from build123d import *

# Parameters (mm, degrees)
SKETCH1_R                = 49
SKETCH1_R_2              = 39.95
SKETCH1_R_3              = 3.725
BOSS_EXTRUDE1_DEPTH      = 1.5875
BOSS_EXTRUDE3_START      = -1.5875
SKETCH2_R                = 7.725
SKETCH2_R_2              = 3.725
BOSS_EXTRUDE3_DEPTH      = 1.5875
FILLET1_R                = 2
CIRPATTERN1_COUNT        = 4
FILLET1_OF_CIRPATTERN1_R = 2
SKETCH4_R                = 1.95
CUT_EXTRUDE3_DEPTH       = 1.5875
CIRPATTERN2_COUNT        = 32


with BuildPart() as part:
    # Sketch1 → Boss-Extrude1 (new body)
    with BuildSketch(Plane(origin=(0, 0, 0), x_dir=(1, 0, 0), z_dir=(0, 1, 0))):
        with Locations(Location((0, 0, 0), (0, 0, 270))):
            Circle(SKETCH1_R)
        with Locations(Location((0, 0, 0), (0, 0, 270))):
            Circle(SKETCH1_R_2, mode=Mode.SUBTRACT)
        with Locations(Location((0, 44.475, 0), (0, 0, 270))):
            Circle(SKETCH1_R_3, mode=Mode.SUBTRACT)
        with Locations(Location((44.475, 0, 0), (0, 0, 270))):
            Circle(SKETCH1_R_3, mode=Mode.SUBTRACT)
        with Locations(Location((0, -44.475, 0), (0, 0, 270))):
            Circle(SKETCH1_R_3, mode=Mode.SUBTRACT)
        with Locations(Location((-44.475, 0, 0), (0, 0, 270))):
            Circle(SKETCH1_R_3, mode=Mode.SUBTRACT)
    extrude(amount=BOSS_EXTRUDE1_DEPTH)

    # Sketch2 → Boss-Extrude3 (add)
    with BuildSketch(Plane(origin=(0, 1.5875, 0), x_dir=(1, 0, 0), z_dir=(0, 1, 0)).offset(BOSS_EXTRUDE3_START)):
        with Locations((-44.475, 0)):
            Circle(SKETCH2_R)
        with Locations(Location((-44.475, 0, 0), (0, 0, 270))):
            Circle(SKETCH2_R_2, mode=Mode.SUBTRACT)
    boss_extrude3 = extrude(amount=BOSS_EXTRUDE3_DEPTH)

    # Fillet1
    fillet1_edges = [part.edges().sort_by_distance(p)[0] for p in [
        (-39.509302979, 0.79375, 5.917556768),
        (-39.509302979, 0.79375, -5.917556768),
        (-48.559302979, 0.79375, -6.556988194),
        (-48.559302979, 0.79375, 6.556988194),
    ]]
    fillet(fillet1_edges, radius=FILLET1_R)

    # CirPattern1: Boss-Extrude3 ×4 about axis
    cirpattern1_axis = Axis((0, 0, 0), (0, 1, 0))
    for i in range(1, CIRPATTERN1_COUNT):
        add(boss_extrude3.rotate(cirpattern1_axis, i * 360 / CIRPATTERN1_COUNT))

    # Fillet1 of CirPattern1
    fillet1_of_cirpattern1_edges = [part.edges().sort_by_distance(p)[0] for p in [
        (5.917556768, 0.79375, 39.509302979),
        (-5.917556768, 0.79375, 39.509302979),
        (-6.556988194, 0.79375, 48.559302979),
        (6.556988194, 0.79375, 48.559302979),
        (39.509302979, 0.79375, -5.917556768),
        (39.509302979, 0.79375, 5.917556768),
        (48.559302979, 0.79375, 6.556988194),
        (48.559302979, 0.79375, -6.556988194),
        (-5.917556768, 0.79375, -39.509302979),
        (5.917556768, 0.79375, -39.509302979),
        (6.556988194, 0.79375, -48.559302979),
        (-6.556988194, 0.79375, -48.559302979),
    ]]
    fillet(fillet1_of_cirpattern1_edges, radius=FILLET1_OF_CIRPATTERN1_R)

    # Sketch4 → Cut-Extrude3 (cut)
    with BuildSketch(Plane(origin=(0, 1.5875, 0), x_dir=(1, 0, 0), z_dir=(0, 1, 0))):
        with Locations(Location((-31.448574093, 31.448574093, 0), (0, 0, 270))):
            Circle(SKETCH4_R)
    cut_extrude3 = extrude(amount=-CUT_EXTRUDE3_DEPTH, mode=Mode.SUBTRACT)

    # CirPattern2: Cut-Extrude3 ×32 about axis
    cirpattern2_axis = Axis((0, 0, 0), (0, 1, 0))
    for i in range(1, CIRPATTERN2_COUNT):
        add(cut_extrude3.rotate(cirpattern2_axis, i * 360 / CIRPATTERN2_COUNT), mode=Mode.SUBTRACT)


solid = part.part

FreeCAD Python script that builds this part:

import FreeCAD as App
import Part
import Sketcher

V = App.Vector
Q = App.Units.Quantity


def edges_at(feature, points):
    """Names of the edges that pass closest to the given points."""
    edges = feature.Shape.Edges
    near = lambda p: min(range(len(edges)), key=lambda i: edges[i].distToShape(Part.Vertex(*p))[0])
    return sorted({f"Edge{near(p) + 1}" for p in points})

doc = App.newDocument("Part")
body = doc.addObject("PartDesign::Body", "Body")

# Sketch on XZ plane
sketch1 = body.newObject("Sketcher::SketchObject", "Sketch")
sketch1.AttachmentSupport = (doc.getObject("XZ_Plane"), [""])
sketch1.MapMode = "FlatFace"
sketch1.addGeometry([
    Part.Circle(V(0, 0, 0), V(0, 0, 1), 49),  # 0
    Part.Circle(V(0, -44.475, 0), V(0, 0, 1), 3.725),  # 1
    Part.Circle(V(-44.475, 0, 0), V(0, 0, 1), 3.725),  # 2
    Part.Circle(V(44.475, 0, 0), V(0, 0, 1), 3.725),  # 3
    Part.Circle(V(0, 0, 0), V(0, 0, 1), 39.95),  # 4
    Part.Circle(V(0, 44.475, 0), V(0, 0, 1), 3.725),  # 5
], False)
sketch1.addConstraint([
    Sketcher.Constraint("Coincident", 0, 3, -1, 1),
    Sketcher.Constraint("Coincident", 4, 3, -1, 1),
    Sketcher.Constraint("Equal", 1, 2),
    Sketcher.Constraint("Equal", 2, 3),
    Sketcher.Constraint("Equal", 3, 5),
    Sketcher.Constraint("Symmetric", 2, 3, 3, 3, -1, 1),
    Sketcher.Constraint("Symmetric", 1, 3, 5, 3, -1, 1),
    Sketcher.Constraint("PointOnObject", 1, 3, -2),
    Sketcher.Constraint("PointOnObject", 2, 3, -1),
    Sketcher.Constraint("Diameter", 0, Q("98 mm")),
    Sketcher.Constraint("Diameter", 4, Q("79.9 mm")),
    Sketcher.Constraint("Diameter", 1, Q("7.45 mm")),
    Sketcher.Constraint("DistanceX", 2, 3, 3, 3, Q("88.95 mm")),
    Sketcher.Constraint("DistanceY", 1, 3, 5, 3, Q("88.95 mm")),
])
pad1 = body.newObject("PartDesign::Pad", "Pad")
pad1.Profile = sketch1
pad1.Length = 1.5875
pad1.Reversed = True

# Sketch on XZ plane
sketch2 = body.newObject("Sketcher::SketchObject", "Sketch001")
sketch2.AttachmentSupport = (doc.getObject("XZ_Plane"), [""])
sketch2.MapMode = "FlatFace"
sketch2.addGeometry([
    Part.Circle(V(-44.475, 0, 0), V(0, 0, 1), 7.725),
    Part.Circle(V(-44.475, 0, 0), V(0, 0, 1), 3.725),
], False)
sketch2.addConstraint([
    Sketcher.Constraint("Coincident", 1, 3, 0, 3),
    Sketcher.Constraint("PointOnObject", 0, 3, -1),
    Sketcher.Constraint("Diameter", 0, Q("15.45 mm")),
    Sketcher.Constraint("Diameter", 1, Q("7.45 mm")),
    Sketcher.Constraint("DistanceX", 0, 3, -1, 1, Q("44.475 mm")),
])
pad2 = body.newObject("PartDesign::Pad", "Pad001")
pad2.Profile = sketch2
pad2.Length = 1.5875
pad2.Reversed = True
doc.recompute()

fillet = body.newObject("PartDesign::Fillet", "Fillet")
fillet.Base = (pad2, edges_at(pad2, [
    (-39.509, 0.794, 5.918),
    (-39.509, 0.794, -5.918),
    (-48.559, 0.794, -6.557),
    (-48.559, 0.794, 6.557),
]))
fillet.Radius = 2
doc.recompute()

polarpattern = body.newObject("PartDesign::PolarPattern", "PolarPattern")
polarpattern.Originals = [pad2]
polarpattern.Axis = (doc.getObject("Y_Axis"), [""])
polarpattern.Angle = 360
polarpattern.Occurrences = 4
body.Tip = polarpattern
doc.recompute()

fillet2 = body.newObject("PartDesign::Fillet", "Fillet001")
fillet2.Base = (polarpattern, edges_at(polarpattern, [
    (5.918, 0.794, 39.509),
    (-5.918, 0.794, 39.509),
    (-6.557, 0.794, 48.559),
    (6.557, 0.794, 48.559),
    (39.509, 0.794, -5.918),
    (39.509, 0.794, 5.918),
    (48.559, 0.794, 6.557),
    (48.559, 0.794, -6.557),
    (-5.918, 0.794, -39.509),
    (5.918, 0.794, -39.509),
    (6.557, 0.794, -48.559),
    (-6.557, 0.794, -48.559),
]))
fillet2.Radius = 2

# Sketch on XZ plane
sketch3 = body.newObject("Sketcher::SketchObject", "Sketch002")
sketch3.AttachmentSupport = (doc.getObject("XZ_Plane"), [""])
sketch3.MapMode = "FlatFace"
sketch3.AttachmentOffset = App.Placement(V(0, 0, -1.5875), App.Rotation())
sketch3.addGeometry(Part.Circle(V(-31.448574, -31.448574, 0), V(0, 0, 1), 1.95), False)
sketch3.addConstraint([
    Sketcher.Constraint("Diameter", 0, Q("3.9 mm")),
    Sketcher.Constraint("DistanceX", 0, 3, -1, 1, Q("31.448574 mm")),
    Sketcher.Constraint("DistanceY", 0, 3, -1, 1, Q("31.448574 mm")),
])
pocket1 = body.newObject("PartDesign::Pocket", "Pocket")
pocket1.Profile = sketch3
pocket1.Length = 1.5875
pocket1.Reversed = True
doc.recompute()

polarpattern2 = body.newObject("PartDesign::PolarPattern", "PolarPattern001")
polarpattern2.Originals = [pocket1]
polarpattern2.Axis = (doc.getObject("Y_Axis"), [""])
polarpattern2.Angle = 360
polarpattern2.Occurrences = 32
body.Tip = polarpattern2

doc.recompute()
